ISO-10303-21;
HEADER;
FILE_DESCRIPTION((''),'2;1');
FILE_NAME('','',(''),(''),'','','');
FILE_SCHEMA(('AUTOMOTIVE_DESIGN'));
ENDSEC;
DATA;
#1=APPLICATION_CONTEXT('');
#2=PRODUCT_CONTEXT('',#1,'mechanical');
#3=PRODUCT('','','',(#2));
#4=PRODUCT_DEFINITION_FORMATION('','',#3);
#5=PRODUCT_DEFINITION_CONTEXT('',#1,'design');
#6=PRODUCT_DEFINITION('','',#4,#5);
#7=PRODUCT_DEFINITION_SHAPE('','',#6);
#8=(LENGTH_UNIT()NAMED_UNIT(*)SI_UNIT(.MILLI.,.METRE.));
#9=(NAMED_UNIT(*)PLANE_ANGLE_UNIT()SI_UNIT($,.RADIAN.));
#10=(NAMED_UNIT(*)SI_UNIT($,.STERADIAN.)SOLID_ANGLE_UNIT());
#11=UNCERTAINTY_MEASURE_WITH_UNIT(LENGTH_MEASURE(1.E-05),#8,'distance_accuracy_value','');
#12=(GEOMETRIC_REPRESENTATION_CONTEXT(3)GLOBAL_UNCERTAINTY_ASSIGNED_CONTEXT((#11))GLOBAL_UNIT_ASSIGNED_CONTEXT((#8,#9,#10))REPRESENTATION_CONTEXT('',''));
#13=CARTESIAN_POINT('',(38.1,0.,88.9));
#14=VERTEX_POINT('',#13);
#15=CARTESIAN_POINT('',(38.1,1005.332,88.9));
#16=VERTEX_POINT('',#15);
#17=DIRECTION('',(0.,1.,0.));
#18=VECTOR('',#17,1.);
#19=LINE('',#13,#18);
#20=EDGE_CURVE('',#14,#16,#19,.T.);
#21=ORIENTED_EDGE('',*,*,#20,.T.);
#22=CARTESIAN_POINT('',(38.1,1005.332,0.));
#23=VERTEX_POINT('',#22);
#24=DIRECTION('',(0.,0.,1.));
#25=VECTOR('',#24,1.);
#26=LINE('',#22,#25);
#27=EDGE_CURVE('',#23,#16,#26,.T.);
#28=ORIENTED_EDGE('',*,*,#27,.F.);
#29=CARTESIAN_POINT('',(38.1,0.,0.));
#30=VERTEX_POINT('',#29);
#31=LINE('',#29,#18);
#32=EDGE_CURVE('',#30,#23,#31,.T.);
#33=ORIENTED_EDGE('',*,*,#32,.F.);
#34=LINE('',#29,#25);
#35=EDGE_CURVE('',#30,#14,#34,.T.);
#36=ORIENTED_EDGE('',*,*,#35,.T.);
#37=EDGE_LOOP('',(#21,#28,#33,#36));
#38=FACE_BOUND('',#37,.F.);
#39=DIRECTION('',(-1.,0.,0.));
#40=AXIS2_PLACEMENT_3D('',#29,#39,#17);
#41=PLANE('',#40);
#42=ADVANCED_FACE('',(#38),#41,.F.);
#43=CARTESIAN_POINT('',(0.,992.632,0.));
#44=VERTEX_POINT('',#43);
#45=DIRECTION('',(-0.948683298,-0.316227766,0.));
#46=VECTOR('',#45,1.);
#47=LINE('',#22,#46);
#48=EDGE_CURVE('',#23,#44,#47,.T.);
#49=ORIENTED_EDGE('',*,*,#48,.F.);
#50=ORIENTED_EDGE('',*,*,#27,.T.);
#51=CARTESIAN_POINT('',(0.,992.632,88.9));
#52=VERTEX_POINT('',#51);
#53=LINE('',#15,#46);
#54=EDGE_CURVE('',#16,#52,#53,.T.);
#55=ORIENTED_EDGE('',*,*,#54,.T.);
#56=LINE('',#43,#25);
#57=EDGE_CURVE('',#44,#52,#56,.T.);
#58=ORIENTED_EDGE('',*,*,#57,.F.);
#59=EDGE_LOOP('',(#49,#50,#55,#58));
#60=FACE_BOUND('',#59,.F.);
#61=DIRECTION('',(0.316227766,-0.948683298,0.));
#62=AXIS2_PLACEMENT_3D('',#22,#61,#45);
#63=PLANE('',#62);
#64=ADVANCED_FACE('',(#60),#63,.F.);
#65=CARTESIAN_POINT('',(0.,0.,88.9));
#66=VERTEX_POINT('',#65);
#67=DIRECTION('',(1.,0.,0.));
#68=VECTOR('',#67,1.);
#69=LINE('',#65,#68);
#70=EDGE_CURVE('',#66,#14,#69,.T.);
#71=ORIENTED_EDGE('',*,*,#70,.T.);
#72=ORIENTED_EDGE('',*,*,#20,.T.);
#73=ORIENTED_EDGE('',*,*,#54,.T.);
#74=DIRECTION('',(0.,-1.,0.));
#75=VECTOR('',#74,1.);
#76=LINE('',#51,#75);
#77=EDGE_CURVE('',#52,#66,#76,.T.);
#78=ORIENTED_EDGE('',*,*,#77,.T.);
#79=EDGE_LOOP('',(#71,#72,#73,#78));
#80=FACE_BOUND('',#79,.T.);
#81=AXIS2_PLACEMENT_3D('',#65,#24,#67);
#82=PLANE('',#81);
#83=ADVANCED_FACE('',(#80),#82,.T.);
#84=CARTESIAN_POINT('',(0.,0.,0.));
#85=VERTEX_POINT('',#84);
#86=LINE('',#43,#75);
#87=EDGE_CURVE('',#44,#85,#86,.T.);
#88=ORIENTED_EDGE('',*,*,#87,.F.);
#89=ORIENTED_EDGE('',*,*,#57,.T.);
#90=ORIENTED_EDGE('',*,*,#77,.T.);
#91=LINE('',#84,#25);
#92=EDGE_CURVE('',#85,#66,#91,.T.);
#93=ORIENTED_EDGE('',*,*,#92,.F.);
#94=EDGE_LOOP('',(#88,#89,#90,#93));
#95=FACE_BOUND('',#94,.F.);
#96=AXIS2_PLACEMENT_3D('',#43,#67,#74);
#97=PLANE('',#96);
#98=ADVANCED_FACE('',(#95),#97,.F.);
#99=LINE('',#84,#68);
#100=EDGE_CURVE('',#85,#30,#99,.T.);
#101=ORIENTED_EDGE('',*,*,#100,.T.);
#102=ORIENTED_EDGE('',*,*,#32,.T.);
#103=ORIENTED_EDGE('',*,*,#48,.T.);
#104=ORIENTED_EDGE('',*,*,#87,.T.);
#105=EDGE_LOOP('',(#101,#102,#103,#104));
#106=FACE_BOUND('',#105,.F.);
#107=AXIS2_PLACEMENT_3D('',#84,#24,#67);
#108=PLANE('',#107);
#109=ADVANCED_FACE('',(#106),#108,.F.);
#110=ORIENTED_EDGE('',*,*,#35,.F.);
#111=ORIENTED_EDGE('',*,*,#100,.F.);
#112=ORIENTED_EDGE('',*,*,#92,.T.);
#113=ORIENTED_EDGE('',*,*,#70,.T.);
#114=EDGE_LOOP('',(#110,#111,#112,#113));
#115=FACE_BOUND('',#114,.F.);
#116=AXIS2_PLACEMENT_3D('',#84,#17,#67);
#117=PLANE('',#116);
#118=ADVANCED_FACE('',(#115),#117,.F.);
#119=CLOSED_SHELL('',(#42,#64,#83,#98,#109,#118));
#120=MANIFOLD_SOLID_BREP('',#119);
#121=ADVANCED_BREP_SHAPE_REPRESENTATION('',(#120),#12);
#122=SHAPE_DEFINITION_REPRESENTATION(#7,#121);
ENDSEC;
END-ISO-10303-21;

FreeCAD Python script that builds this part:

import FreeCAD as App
import Part
import Sketcher

V = App.Vector
Q = App.Units.Quantity


def add_polygon(sketch, points):
    """Adds a closed chain of lines whose ends are joined by coincident constraints."""
    first, n = sketch.GeometryCount, len(points)
    for a, b in zip(points, points[1:] + points[:1]):
        sketch.addGeometry(Part.LineSegment(App.Vector(*a, 0), App.Vector(*b, 0)), False)
    for i in range(n):
        sketch.addConstraint(Sketcher.Constraint("Coincident", first + i, 2, first + (i + 1) % n, 1))

doc = App.newDocument("Part")
body = doc.addObject("PartDesign::Body", "Body")

# Sketch on XY plane
sketch1 = body.newObject("Sketcher::SketchObject", "Sketch")
sketch1.AttachmentSupport = (doc.getObject("XY_Plane"), [""])
sketch1.MapMode = "FlatFace"
add_polygon(sketch1, [(0, 993), (0, 0), (38, 0), (38, 1005)])  # lines 0-3
sketch1.addConstraint([
    Sketcher.Constraint("Vertical", 0),
    Sketcher.Constraint("Horizontal", 1),
    Sketcher.Constraint("Vertical", 2),
    Sketcher.Constraint("Coincident", 0, 2, -1, 1),
    Sketcher.Constraint("DistanceX", 1, 1, 1, 2, Q("1.5 in")),
    Sketcher.Constraint("DistanceY", 0, 2, 0, 1, Q("39.08 in")),
    Sketcher.Constraint("DistanceY", 2, 1, 2, 2, Q("39.58 in")),
])
pad1 = body.newObject("PartDesign::Pad", "Pad")
pad1.Profile = sketch1
pad1.Length = Q("3.5 in")

doc.recompute()
